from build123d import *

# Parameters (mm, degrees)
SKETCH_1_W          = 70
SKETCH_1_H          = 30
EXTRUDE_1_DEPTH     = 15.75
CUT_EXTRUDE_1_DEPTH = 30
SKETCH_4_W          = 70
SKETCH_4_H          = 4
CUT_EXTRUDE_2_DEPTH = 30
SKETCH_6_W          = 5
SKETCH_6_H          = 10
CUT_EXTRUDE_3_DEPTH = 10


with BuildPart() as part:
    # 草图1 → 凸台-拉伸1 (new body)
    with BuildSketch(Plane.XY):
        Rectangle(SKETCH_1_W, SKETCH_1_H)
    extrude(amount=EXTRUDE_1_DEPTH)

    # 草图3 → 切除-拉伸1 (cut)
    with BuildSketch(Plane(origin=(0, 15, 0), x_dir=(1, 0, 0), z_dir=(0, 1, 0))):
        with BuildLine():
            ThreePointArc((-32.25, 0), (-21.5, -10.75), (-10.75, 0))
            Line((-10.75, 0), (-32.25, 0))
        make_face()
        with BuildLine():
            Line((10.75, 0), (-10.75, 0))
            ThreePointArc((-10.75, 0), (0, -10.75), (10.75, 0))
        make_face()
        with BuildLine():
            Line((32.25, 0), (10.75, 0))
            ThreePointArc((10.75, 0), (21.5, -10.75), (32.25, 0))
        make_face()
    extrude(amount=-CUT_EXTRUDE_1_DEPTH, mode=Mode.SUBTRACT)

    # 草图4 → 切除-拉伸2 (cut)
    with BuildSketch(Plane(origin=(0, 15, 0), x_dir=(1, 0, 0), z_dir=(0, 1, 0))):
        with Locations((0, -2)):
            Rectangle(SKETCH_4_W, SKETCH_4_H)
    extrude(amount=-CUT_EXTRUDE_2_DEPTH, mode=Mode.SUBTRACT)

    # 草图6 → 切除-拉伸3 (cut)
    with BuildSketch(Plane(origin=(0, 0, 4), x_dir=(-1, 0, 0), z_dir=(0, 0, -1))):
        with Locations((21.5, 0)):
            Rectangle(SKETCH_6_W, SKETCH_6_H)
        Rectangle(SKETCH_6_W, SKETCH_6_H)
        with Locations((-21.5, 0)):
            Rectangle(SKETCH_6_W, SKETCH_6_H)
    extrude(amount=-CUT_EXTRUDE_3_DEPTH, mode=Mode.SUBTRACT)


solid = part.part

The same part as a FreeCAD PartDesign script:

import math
import FreeCAD as App
import Part
import Sketcher
from FreeCAD import Vector
Q = App.Units.Quantity

doc = App.newDocument("Part")
body = doc.addObject("PartDesign::Body", "Body")

sketch1 = body.newObject("Sketcher::SketchObject", "Sketch")
sketch1.AttachmentSupport = (doc.getObject("XY_Plane"), [""])
sketch1.MapMode = "FlatFace"
sketch1.addGeometry(Part.LineSegment(Vector(-35, 15, 0), Vector(-35, -15, 0)), False)
sketch1.addGeometry(Part.LineSegment(Vector(-35, -15, 0), Vector(35, -15, 0)), False)
sketch1.addGeometry(Part.LineSegment(Vector(35, -15, 0), Vector(35, 15, 0)), False)
sketch1.addGeometry(Part.LineSegment(Vector(35, 15, 0), Vector(-35, 15, 0)), False)
sketch1.addConstraint(Sketcher.Constraint("Coincident", 0, 2, 1, 1))
sketch1.addConstraint(Sketcher.Constraint("Coincident", 1, 2, 2, 1))
sketch1.addConstraint(Sketcher.Constraint("Coincident", 2, 2, 3, 1))
sketch1.addConstraint(Sketcher.Constraint("Coincident", 3, 2, 0, 1))
sketch1.addConstraint(Sketcher.Constraint("Vertical", 0))
sketch1.addConstraint(Sketcher.Constraint("Horizontal", 1))
sketch1.addConstraint(Sketcher.Constraint("Vertical", 2))
sketch1.addConstraint(Sketcher.Constraint("Horizontal", 3))
sketch1.addConstraint(Sketcher.Constraint("Symmetric", 0, 2, 2, 2, -1, 1))
sketch1.addConstraint(Sketcher.Constraint("DistanceX", 1, 1, 1, 2, Q("70 mm")))
sketch1.addConstraint(Sketcher.Constraint("DistanceY", 0, 2, 0, 1, Q("30 mm")))
pad1 = body.newObject("PartDesign::Pad", "Pad")
pad1.Profile = sketch1
pad1.Length = 15.75

sketch2 = body.newObject("Sketcher::SketchObject", "Sketch001")
sketch2.AttachmentSupport = (doc.getObject("XZ_Plane"), [""])
sketch2.MapMode = "FlatFace"
sketch2.AttachmentOffset = App.Placement(Vector(0, 0, -15), App.Rotation())
sketch2.addGeometry(Part.ArcOfCircle(Part.Circle(Vector(-22, 0, 0), Vector(0, 0, 1), 11), math.radians(0), math.radians(180)), False)
sketch2.addGeometry(Part.LineSegment(Vector(-11, 0, 0), Vector(-32, 0, 0)), False)
sketch2.addGeometry(Part.LineSegment(Vector(11, 0, 0), Vector(-11, 0, 0)), False)
sketch2.addGeometry(Part.ArcOfCircle(Part.Circle(Vector(0, 0, 0), Vector(0, 0, 1), 11), math.radians(0), math.radians(180)), False)
sketch2.addGeometry(Part.LineSegment(Vector(32, 0, 0), Vector(11, 0, 0)), False)
sketch2.addGeometry(Part.ArcOfCircle(Part.Circle(Vector(22, 0, 0), Vector(0, 0, 1), 11), math.radians(0), math.radians(180)), False)
sketch2.addConstraint(Sketcher.Constraint("Coincident", 0, 1, 1, 1))
sketch2.addConstraint(Sketcher.Constraint("Coincident", 1, 2, 0, 2))
sketch2.addConstraint(Sketcher.Constraint("Coincident", 2, 1, 3, 1))
sketch2.addConstraint(Sketcher.Constraint("Coincident", 3, 2, 2, 2))
sketch2.addConstraint(Sketcher.Constraint("Coincident", 4, 1, 5, 1))
sketch2.addConstraint(Sketcher.Constraint("Coincident", 5, 2, 4, 2))
sketch2.addConstraint(Sketcher.Constraint("Horizontal", 1))
sketch2.addConstraint(Sketcher.Constraint("Horizontal", 2))
sketch2.addConstraint(Sketcher.Constraint("Horizontal", 4))
sketch2.addConstraint(Sketcher.Constraint("Coincident", 3, 3, -1, 1))
sketch2.addConstraint(Sketcher.Constraint("Coincident", 3, 2, 0, 1))
sketch2.addConstraint(Sketcher.Constraint("Coincident", 5, 2, 2, 1))
sketch2.addConstraint(Sketcher.Constraint("Equal", 0, 3))
sketch2.addConstraint(Sketcher.Constraint("Equal", 3, 5))
sketch2.addConstraint(Sketcher.Constraint("PointOnObject", 0, 3, -1))
sketch2.addConstraint(Sketcher.Constraint("PointOnObject", 5, 3, -1))
sketch2.addConstraint(Sketcher.Constraint("PointOnObject", 0, 1, -1))
sketch2.addConstraint(Sketcher.Constraint("Radius", 0, Q("10.75 mm")))
pocket1 = body.newObject("PartDesign::Pocket", "Pocket")
pocket1.Profile = sketch2
pocket1.Length = 30
pocket1.Reversed = True

sketch3 = body.newObject("Sketcher::SketchObject", "Sketch002")
sketch3.AttachmentSupport = (doc.getObject("XZ_Plane"), [""])
sketch3.MapMode = "FlatFace"
sketch3.AttachmentOffset = App.Placement(Vector(0, 0, -15), App.Rotation())
sketch3.addGeometry(Part.LineSegment(Vector(-35, 0, 0), Vector(-35, 4, 0)), False)
sketch3.addGeometry(Part.LineSegment(Vector(-35, 4, 0), Vector(35, 4, 0)), False)
sketch3.addGeometry(Part.LineSegment(Vector(35, 4, 0), Vector(35, 0, 0)), False)
sketch3.addGeometry(Part.LineSegment(Vector(35, 0, 0), Vector(-35, 0, 0)), False)
sketch3.addConstraint(Sketcher.Constraint("Coincident", 0, 2, 1, 1))
sketch3.addConstraint(Sketcher.Constraint("Coincident", 1, 2, 2, 1))
sketch3.addConstraint(Sketcher.Constraint("Coincident", 2, 2, 3, 1))
sketch3.addConstraint(Sketcher.Constraint("Coincident", 3, 2, 0, 1))
sketch3.addConstraint(Sketcher.Constraint("Vertical", 0))
sketch3.addConstraint(Sketcher.Constraint("Horizontal", 1))
sketch3.addConstraint(Sketcher.Constraint("Vertical", 2))
sketch3.addConstraint(Sketcher.Constraint("Horizontal", 3))
sketch3.addConstraint(Sketcher.Constraint("Symmetric", 2, 2, 3, 2, -1, 1))
sketch3.addConstraint(Sketcher.Constraint("DistanceX", 1, 1, 1, 2, Q("70 mm")))
sketch3.addConstraint(Sketcher.Constraint("DistanceY", 0, 1, 0, 2, Q("4 mm")))
pocket2 = body.newObject("PartDesign::Pocket", "Pocket001")
pocket2.Profile = sketch3
pocket2.Length = 30
pocket2.Reversed = True

sketch4 = body.newObject("Sketcher::SketchObject", "Sketch003")
sketch4.AttachmentSupport = (doc.getObject("XY_Plane"), [""])
sketch4.MapMode = "FlatFace"
sketch4.AttachmentOffset = App.Placement(Vector(0, 0, 4), App.Rotation())
sketch4.addGeometry(Part.LineSegment(Vector(-19, 5, 0), Vector(-19, -5, 0)), False)
sketch4.addGeometry(Part.LineSegment(Vector(-19, -5, 0), Vector(-24, -5, 0)), False)
sketch4.addGeometry(Part.LineSegment(Vector(-24, -5, 0), Vector(-24, 5, 0)), False)
sketch4.addGeometry(Part.LineSegment(Vector(-24, 5, 0), Vector(-19, 5, 0)), False)
sketch4.addGeometry(Part.LineSegment(Vector(2, 5, 0), Vector(2, -5, 0)), False)
sketch4.addGeometry(Part.LineSegment(Vector(2, -5, 0), Vector(-2, -5, 0)), False)
sketch4.addGeometry(Part.LineSegment(Vector(-2, -5, 0), Vector(-2, 5, 0)), False)
sketch4.addGeometry(Part.LineSegment(Vector(-2, 5, 0), Vector(2, 5, 0)), False)
sketch4.addGeometry(Part.LineSegment(Vector(24, 5, 0), Vector(24, -5, 0)), False)
sketch4.addGeometry(Part.LineSegment(Vector(24, -5, 0), Vector(19, -5, 0)), False)
sketch4.addGeometry(Part.LineSegment(Vector(19, -5, 0), Vector(19, 5, 0)), False)
sketch4.addGeometry(Part.LineSegment(Vector(19, 5, 0), Vector(24, 5, 0)), False)
sketch4.addConstraint(Sketcher.Constraint("Coincident", 0, 2, 1, 1))
sketch4.addConstraint(Sketcher.Constraint("Coincident", 1, 2, 2, 1))
sketch4.addConstraint(Sketcher.Constraint("Coincident", 2, 2, 3, 1))
sketch4.addConstraint(Sketcher.Constraint("Coincident", 3, 2, 0, 1))
sketch4.addConstraint(Sketcher.Constraint("Coincident", 4, 2, 5, 1))
sketch4.addConstraint(Sketcher.Constraint("Coincident", 5, 2, 6, 1))
sketch4.addConstraint(Sketcher.Constraint("Coincident", 6, 2, 7, 1))
sketch4.addConstraint(Sketcher.Constraint("Coincident", 7, 2, 4, 1))
sketch4.addConstraint(Sketcher.Constraint("Coincident", 8, 2, 9, 1))
sketch4.addConstraint(Sketcher.Constraint("Coincident", 9, 2, 10, 1))
sketch4.addConstraint(Sketcher.Constraint("Coincident", 10, 2, 11, 1))
sketch4.addConstraint(Sketcher.Constraint("Coincident", 11, 2, 8, 1))
sketch4.addConstraint(Sketcher.Constraint("Vertical", 0))
sketch4.addConstraint(Sketcher.Constraint("Horizontal", 1))
sketch4.addConstraint(Sketcher.Constraint("Vertical", 2))
sketch4.addConstraint(Sketcher.Constraint("Horizontal", 3))
sketch4.addConstraint(Sketcher.Constraint("Vertical", 4))
sketch4.addConstraint(Sketcher.Constraint("Horizontal", 5))
sketch4.addConstraint(Sketcher.Constraint("Vertical", 6))
sketch4.addConstraint(Sketcher.Constraint("Horizontal", 7))
sketch4.addConstraint(Sketcher.Constraint("Vertical", 8))
sketch4.addConstraint(Sketcher.Constraint("Horizontal", 9))
sketch4.addConstraint(Sketcher.Constraint("Vertical", 10))
sketch4.addConstraint(Sketcher.Constraint("Horizontal", 11))
sketch4.addConstraint(Sketcher.Constraint("Symmetric", 4, 2, 6, 2, -1, 1))
sketch4.addConstraint(Sketcher.Constraint("Symmetric", 2, 2, 8, 2, -1, 1))
sketch4.addConstraint(Sketcher.Constraint("Symmetric", 0, 2, 10, 2, -1, 1))
sketch4.addConstraint(Sketcher.Constraint("Horizontal", 1, 2, 4, 2))
sketch4.addConstraint(Sketcher.Constraint("Horizontal", 3, 2, 6, 2))
sketch4.addConstraint(Sketcher.Constraint("Equal", 3, 5))
sketch4.addConstraint(Sketcher.Constraint("DistanceX", 1, 2, 1, 1, Q("5 mm")))
sketch4.addConstraint(Sketcher.Constraint("DistanceY", 0, 2, 0, 1, Q("10 mm")))
sketch4.addConstraint(Sketcher.Constraint("DistanceX", 0, 2, -1, 1, Q("19 mm")))
pocket3 = body.newObject("PartDesign::Pocket", "Pocket002")
pocket3.Profile = sketch4
pocket3.Length = 10
pocket3.Reversed = True

doc.recompute()
